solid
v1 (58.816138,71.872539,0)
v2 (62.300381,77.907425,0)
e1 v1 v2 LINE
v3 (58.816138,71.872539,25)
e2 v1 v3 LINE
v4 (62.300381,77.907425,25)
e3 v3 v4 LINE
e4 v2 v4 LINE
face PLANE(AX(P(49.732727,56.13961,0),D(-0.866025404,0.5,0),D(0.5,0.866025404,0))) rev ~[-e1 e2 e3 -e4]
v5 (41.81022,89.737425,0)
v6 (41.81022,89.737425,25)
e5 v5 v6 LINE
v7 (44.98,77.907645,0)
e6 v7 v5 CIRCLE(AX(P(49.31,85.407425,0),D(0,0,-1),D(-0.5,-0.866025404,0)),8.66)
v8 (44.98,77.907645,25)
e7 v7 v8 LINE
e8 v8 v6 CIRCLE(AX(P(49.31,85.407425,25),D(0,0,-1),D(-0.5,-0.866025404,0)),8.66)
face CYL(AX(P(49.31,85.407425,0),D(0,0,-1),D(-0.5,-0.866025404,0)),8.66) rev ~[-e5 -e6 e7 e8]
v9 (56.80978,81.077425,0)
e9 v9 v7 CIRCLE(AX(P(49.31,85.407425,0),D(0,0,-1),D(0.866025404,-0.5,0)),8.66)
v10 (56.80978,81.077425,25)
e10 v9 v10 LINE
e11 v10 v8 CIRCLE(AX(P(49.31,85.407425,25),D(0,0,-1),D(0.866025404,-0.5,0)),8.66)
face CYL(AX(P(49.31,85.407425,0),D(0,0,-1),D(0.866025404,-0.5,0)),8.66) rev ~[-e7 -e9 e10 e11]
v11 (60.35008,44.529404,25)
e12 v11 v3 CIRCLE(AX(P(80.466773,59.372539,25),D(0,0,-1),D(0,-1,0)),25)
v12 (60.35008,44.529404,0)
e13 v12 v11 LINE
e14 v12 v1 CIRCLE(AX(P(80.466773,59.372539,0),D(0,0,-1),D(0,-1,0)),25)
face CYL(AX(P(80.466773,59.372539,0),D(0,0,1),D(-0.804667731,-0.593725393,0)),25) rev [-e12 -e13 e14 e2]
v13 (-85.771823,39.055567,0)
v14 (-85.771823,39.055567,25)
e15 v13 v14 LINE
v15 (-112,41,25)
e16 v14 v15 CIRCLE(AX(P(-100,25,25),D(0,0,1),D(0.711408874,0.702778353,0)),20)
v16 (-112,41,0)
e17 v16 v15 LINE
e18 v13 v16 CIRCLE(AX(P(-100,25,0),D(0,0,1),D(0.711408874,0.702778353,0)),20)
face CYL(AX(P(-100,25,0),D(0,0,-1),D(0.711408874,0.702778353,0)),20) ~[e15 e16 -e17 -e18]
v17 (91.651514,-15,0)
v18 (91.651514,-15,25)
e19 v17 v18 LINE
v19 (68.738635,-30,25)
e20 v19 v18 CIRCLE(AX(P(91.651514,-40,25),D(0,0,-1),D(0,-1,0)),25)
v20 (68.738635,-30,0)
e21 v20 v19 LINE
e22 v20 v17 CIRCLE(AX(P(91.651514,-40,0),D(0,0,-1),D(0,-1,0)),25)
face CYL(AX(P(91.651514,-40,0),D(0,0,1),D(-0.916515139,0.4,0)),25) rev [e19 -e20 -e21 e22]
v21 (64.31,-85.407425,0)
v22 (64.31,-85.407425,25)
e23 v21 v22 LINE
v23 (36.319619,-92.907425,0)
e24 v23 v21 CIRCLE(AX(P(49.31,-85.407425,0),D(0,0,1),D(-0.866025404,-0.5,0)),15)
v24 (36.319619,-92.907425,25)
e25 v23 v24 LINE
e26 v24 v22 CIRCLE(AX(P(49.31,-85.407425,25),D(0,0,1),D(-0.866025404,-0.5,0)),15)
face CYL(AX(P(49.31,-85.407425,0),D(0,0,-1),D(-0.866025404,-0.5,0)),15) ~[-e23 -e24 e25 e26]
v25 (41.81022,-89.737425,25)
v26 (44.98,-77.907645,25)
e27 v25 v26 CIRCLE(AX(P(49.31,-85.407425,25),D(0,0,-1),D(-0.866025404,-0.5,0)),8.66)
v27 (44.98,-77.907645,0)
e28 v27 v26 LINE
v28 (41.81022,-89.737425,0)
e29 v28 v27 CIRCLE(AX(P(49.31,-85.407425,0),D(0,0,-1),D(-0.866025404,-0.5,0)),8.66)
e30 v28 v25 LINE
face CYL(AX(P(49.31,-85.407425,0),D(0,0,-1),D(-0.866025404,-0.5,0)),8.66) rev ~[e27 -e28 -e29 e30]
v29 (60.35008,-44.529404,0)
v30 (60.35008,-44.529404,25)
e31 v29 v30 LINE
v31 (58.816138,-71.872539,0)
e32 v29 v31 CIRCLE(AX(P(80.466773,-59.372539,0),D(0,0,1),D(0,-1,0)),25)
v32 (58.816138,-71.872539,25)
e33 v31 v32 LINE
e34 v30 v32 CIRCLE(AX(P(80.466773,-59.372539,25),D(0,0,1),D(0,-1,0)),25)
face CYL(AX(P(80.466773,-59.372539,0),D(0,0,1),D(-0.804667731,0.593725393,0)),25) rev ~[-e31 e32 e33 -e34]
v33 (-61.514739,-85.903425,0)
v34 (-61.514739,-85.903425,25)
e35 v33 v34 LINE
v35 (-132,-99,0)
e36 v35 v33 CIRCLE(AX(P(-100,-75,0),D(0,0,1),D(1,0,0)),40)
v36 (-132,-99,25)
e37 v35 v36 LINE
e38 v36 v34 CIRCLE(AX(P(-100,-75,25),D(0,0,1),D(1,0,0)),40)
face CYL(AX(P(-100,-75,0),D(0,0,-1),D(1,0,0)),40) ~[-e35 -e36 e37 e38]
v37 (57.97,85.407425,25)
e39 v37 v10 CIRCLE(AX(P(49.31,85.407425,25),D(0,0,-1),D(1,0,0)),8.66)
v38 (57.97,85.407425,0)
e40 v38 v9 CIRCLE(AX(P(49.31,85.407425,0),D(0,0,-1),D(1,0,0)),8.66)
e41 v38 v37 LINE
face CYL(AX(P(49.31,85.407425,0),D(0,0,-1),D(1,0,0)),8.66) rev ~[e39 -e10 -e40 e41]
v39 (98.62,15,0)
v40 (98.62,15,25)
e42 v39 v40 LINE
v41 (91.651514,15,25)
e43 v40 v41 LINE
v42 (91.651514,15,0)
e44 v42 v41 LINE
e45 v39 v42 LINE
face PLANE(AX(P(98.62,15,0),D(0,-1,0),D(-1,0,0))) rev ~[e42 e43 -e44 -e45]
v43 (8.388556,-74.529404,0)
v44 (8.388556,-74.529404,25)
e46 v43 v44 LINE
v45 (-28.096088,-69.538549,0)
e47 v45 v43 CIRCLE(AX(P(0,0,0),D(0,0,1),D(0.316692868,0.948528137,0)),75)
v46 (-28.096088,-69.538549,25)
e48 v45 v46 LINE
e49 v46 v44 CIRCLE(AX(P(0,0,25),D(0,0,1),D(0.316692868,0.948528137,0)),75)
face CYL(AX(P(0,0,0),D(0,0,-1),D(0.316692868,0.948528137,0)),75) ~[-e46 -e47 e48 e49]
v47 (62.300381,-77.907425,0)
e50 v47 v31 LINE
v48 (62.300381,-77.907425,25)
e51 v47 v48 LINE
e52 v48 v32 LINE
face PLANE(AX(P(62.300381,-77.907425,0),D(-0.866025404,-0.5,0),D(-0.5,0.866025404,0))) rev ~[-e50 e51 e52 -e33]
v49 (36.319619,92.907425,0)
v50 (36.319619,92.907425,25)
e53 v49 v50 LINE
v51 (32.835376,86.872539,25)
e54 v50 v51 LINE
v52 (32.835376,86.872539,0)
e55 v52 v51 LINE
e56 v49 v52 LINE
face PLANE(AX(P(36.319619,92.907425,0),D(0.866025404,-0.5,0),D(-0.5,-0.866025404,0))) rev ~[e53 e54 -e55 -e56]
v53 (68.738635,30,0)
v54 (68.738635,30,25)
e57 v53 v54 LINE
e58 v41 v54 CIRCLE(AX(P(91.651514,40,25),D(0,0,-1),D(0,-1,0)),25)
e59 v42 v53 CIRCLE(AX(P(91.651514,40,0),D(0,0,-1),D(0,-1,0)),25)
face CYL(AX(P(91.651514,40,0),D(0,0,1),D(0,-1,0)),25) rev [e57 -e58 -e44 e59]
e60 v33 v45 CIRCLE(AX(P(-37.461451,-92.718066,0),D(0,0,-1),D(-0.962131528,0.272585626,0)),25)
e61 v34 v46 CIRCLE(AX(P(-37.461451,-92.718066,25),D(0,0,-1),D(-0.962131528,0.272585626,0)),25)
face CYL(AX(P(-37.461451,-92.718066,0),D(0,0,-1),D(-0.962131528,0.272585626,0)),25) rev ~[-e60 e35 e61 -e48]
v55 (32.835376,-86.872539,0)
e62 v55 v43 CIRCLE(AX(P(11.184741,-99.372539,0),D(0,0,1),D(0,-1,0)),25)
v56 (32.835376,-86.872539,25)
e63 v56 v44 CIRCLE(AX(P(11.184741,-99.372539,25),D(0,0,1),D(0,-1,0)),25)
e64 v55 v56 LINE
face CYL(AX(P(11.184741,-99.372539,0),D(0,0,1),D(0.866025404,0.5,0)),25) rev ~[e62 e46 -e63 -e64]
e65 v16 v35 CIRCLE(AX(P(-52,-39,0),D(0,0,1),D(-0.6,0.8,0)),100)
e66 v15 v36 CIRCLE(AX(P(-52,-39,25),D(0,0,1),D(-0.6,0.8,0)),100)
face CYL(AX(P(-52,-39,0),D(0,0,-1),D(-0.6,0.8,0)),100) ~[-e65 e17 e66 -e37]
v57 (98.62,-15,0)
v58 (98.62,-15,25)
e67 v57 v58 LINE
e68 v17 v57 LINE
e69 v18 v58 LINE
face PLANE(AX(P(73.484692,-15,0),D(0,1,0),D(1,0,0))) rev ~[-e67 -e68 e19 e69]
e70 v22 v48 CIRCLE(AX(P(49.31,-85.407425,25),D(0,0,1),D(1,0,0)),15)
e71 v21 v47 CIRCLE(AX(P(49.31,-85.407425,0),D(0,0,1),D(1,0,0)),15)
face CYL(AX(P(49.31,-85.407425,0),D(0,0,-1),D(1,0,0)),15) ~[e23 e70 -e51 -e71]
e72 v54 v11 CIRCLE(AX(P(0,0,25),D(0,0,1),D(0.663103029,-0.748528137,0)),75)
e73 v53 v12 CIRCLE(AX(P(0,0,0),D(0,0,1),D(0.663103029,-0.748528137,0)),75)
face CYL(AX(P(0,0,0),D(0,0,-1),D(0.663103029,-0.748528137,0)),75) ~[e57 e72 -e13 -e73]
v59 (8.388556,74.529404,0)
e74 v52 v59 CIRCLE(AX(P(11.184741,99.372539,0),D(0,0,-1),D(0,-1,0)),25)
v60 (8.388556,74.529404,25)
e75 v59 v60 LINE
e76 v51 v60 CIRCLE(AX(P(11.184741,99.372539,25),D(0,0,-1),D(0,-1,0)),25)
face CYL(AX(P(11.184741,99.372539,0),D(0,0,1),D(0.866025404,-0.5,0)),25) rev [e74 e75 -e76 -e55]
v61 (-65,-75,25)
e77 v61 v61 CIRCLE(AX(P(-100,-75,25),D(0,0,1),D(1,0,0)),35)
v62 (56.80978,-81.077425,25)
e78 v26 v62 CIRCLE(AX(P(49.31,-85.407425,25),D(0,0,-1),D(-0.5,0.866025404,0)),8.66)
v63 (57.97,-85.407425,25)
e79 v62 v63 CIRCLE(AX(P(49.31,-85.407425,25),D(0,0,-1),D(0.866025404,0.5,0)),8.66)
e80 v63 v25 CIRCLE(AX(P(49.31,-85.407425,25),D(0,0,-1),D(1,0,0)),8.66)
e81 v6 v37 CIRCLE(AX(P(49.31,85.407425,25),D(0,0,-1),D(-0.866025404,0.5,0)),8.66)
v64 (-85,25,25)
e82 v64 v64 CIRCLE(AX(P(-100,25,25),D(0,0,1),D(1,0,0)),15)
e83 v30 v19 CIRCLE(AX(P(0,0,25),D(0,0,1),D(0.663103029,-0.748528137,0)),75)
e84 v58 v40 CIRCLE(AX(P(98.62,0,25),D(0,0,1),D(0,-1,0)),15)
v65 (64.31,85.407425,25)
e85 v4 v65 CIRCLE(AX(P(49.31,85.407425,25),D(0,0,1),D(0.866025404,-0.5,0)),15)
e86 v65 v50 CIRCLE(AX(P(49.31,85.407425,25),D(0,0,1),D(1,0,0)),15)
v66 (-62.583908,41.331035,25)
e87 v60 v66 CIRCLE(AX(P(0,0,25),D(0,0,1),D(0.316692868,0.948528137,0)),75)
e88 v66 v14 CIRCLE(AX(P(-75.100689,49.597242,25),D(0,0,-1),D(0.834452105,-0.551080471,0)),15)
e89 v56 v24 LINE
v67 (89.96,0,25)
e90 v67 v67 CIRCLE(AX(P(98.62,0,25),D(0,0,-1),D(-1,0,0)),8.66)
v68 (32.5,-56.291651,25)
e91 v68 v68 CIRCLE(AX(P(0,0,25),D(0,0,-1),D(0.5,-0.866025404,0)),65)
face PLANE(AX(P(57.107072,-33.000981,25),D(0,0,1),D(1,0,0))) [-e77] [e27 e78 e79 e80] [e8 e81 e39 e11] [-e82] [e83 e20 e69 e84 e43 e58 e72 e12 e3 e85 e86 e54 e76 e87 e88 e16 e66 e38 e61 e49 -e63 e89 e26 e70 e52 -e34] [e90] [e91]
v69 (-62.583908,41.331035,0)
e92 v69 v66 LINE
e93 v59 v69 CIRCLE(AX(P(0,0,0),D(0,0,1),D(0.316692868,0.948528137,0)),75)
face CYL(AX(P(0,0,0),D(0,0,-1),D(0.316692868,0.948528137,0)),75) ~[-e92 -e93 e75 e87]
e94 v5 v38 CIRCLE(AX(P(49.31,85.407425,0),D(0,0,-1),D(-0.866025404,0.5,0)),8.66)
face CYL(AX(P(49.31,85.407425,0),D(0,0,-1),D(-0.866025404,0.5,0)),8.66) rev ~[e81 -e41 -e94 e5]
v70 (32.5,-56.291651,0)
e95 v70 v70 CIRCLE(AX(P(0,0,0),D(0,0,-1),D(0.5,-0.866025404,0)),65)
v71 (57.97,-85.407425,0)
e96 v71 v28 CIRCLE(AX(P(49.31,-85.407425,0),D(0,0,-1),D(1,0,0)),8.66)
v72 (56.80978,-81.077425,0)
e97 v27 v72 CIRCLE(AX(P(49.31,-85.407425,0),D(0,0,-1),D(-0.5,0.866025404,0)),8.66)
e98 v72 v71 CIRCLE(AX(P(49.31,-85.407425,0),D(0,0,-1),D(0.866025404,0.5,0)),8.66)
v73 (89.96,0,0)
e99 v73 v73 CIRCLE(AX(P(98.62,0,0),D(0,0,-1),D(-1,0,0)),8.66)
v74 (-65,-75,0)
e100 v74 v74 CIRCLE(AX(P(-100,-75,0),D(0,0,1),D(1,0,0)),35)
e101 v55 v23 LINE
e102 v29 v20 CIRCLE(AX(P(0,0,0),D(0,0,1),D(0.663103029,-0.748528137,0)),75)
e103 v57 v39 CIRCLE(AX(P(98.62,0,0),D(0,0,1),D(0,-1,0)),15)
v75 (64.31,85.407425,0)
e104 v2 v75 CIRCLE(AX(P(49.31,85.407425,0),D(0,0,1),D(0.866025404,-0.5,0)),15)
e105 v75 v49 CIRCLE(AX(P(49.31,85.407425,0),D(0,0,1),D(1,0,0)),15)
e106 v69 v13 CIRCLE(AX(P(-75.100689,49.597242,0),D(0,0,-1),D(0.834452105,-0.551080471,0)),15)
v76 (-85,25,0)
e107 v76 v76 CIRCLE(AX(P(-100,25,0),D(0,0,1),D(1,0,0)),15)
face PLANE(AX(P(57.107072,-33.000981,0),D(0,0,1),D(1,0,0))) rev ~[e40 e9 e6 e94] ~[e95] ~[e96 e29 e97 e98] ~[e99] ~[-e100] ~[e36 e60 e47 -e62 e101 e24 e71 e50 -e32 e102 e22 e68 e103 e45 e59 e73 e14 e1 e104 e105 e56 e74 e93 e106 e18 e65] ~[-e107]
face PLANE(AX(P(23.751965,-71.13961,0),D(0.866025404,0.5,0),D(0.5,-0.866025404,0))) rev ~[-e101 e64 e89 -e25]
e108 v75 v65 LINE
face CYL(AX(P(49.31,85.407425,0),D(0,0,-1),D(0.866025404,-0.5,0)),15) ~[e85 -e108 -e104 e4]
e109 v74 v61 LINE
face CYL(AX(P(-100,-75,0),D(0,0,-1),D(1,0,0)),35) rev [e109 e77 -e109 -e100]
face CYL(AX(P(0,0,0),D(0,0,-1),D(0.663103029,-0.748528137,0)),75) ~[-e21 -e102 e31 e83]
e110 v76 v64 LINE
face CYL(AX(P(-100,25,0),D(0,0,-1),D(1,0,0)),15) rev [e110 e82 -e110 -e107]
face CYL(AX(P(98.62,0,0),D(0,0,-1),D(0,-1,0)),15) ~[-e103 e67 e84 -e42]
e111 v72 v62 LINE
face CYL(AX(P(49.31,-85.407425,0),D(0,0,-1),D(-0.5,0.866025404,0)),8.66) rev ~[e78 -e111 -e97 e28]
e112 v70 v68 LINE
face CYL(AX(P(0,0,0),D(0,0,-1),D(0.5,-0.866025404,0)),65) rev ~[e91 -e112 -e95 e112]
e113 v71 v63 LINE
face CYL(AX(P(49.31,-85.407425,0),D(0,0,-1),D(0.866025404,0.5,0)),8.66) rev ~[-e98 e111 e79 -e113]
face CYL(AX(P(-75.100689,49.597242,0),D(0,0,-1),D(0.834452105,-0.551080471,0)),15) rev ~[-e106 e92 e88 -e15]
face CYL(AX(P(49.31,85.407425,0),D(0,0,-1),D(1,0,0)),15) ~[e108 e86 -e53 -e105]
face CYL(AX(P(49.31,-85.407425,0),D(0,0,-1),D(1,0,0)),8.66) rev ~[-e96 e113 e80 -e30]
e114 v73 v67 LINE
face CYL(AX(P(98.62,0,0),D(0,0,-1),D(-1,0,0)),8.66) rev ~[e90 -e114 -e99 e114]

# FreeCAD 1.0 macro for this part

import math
import FreeCAD as App
import Part
import Sketcher

V = App.Vector
Q = App.Units.Quantity


def edges_at(feature, points):
    """Names of the edges that pass closest to the given points."""
    edges = feature.Shape.Edges
    near = lambda p: min(range(len(edges)), key=lambda i: edges[i].distToShape(Part.Vertex(*p))[0])
    return sorted({f"Edge{near(p) + 1}" for p in points})

doc = App.newDocument("Part")
body = doc.addObject("PartDesign::Body", "Body")

# Sketch on XY plane
sketch1 = body.newObject("Sketcher::SketchObject", "Sketch")
sketch1.AttachmentSupport = (doc.getObject("XY_Plane"), [""])
sketch1.MapMode = "FlatFace"
sketch1.addGeometry(Part.ArcOfCircle(Part.Circle(V(0, 0, 0), V(0, 0, 1), 75), math.radians(-48), math.radians(-12)), False)
sketch1.addGeometry(Part.LineSegment(V(73.5, -15, 0), V(98.6, -15, 0)), False)
sketch1.addGeometry(Part.ArcOfCircle(Part.Circle(V(98.6, 0, 0), V(0, 0, 1), 15), math.radians(-90), math.radians(90)), False)
sketch1.addGeometry(Part.LineSegment(V(98.6, 15, 0), V(73.5, 15, 0)), False)
sketch1.addGeometry(Part.ArcOfCircle(Part.Circle(V(0, 0, 0), V(0, 0, 1), 75), math.radians(12), math.radians(48)), False)
sketch1.addGeometry(Part.LineSegment(V(49.7, 56.1, 0), V(62.3, 77.9, 0)), False)
sketch1.addGeometry(Part.ArcOfCircle(Part.Circle(V(49.3, 85.4, 0), V(0, 0, 1), 15), math.radians(-30), math.radians(0)), False)
sketch1.addGeometry(Part.ArcOfCircle(Part.Circle(V(49.3, 85.4, 0), V(0, 0, 1), 15), math.radians(0), math.radians(150)), False)
sketch1.addGeometry(Part.LineSegment(V(36.3, 92.9, 0), V(23.8, 71.1, 0)), False)
sketch1.addGeometry(Part.ArcOfCircle(Part.Circle(V(0, 0, 0), V(0, 0, 1), 75), math.radians(72), math.radians(147)), False)
sketch1.addGeometry(Part.ArcOfCircle(Part.Circle(V(-75.1, 49.6, 0), V(0, 0, 1), 15), math.radians(-135), math.radians(-33)), False)
sketch1.addGeometry(Part.ArcOfCircle(Part.Circle(V(-100, 25, 0), V(0, 0, 1), 20), math.radians(45), math.radians(127)), False)
sketch1.addGeometry(Part.ArcOfCircle(Part.Circle(V(-52, -39, 0), V(0, 0, 1), 100), math.radians(127), math.radians(217)), False)
sketch1.addGeometry(Part.ArcOfCircle(Part.Circle(V(-100, -75, 0), V(0, 0, 1), 40), math.radians(-143), math.radians(-16)), False)
sketch1.addGeometry(Part.ArcOfCircle(Part.Circle(V(-37.5, -92.7, 0), V(0, 0, 1), 25), math.radians(68), math.radians(164)), False)
sketch1.addGeometry(Part.ArcOfCircle(Part.Circle(V(0, 0, 0), V(0, 0, 1), 75), math.radians(-112), math.radians(-72)), False)
sketch1.addGeometry(Part.LineSegment(V(23.8, -71.1, 0), V(36.3, -92.9, 0)), False)
sketch1.addGeometry(Part.ArcOfCircle(Part.Circle(V(49.3, -85.4, 0), V(0, 0, 1), 15), math.radians(-150), math.radians(0)), False)
sketch1.addGeometry(Part.ArcOfCircle(Part.Circle(V(49.3, -85.4, 0), V(0, 0, 1), 15), math.radians(0), math.radians(30)), False)
sketch1.addGeometry(Part.LineSegment(V(62.3, -77.9, 0), V(49.7, -56.1, 0)), False)
sketch1.addGeometry(Part.Circle(V(-100, -75, 0), V(0, 0, 1), 35), False)
sketch1.addGeometry(Part.ArcOfCircle(Part.Circle(V(49.3, -85.4, 0), V(0, 0, 1), 8.7), math.radians(120), math.radians(210)), False)
sketch1.addGeometry(Part.ArcOfCircle(Part.Circle(V(49.3, -85.4, 0), V(0, 0, 1), 8.7), math.radians(30), math.radians(120)), False)
sketch1.addGeometry(Part.ArcOfCircle(Part.Circle(V(49.3, -85.4, 0), V(0, 0, 1), 8.7), math.radians(0), math.radians(30)), False)
sketch1.addGeometry(Part.ArcOfCircle(Part.Circle(V(49.3, -85.4, 0), V(0, 0, 1), 8.7), math.radians(-150), math.radians(0)), False)
sketch1.addGeometry(Part.Circle(V(-100, 25, 0), V(0, 0, 1), 15), False)
sketch1.addGeometry(Part.Circle(V(0, 0, 0), V(0, 0, 1), 65), False)
sketch1.addGeometry(Part.Circle(V(98.6, 0, 0), V(0, 0, 1), 8.7), False)
sketch1.addGeometry(Part.ArcOfCircle(Part.Circle(V(49.3, 85.4, 0), V(0, 0, 1), 8.7), math.radians(-120), math.radians(-30)), False)
sketch1.addGeometry(Part.ArcOfCircle(Part.Circle(V(49.3, 85.4, 0), V(0, 0, 1), 8.7), math.radians(150), math.radians(240)), False)
sketch1.addGeometry(Part.ArcOfCircle(Part.Circle(V(49.3, 85.4, 0), V(0, 0, 1), 8.7), math.radians(0), math.radians(150)), False)
sketch1.addGeometry(Part.ArcOfCircle(Part.Circle(V(49.3, 85.4, 0), V(0, 0, 1), 8.7), math.radians(-30), math.radians(0)), False)
sketch1.addConstraint(Sketcher.Constraint("Coincident", 0, 2, 1, 1))
sketch1.addConstraint(Sketcher.Constraint("Tangent", 1, 2, 2, 1))
sketch1.addConstraint(Sketcher.Constraint("Tangent", 2, 2, 3, 1))
sketch1.addConstraint(Sketcher.Constraint("Coincident", 3, 2, 4, 1))
sketch1.addConstraint(Sketcher.Constraint("Coincident", 4, 2, 5, 1))
sketch1.addConstraint(Sketcher.Constraint("Tangent", 5, 2, 6, 1))
sketch1.addConstraint(Sketcher.Constraint("Tangent", 6, 2, 7, 1))
sketch1.addConstraint(Sketcher.Constraint("Tangent", 7, 2, 8, 1))
sketch1.addConstraint(Sketcher.Constraint("Coincident", 8, 2, 9, 1))
sketch1.addConstraint(Sketcher.Constraint("Tangent", 9, 2, 10, 2))
sketch1.addConstraint(Sketcher.Constraint("Tangent", 10, 1, 11, 1))
sketch1.addConstraint(Sketcher.Constraint("Tangent", 11, 2, 12, 1))
sketch1.addConstraint(Sketcher.Constraint("Tangent", 12, 2, 13, 1))
sketch1.addConstraint(Sketcher.Constraint("Tangent", 13, 2, 14, 2))
sketch1.addConstraint(Sketcher.Constraint("Tangent", 14, 1, 15, 1))
sketch1.addConstraint(Sketcher.Constraint("Coincident", 15, 2, 16, 1))
sketch1.addConstraint(Sketcher.Constraint("Tangent", 16, 2, 17, 1))
sketch1.addConstraint(Sketcher.Constraint("Tangent", 17, 2, 18, 1))
sketch1.addConstraint(Sketcher.Constraint("Tangent", 18, 2, 19, 1))
sketch1.addConstraint(Sketcher.Constraint("Coincident", 19, 2, 0, 1))
sketch1.addConstraint(Sketcher.Constraint("Tangent", 21, 1, 22, 2))
sketch1.addConstraint(Sketcher.Constraint("Tangent", 22, 1, 23, 2))
sketch1.addConstraint(Sketcher.Constraint("Tangent", 23, 1, 24, 2))
sketch1.addConstraint(Sketcher.Constraint("Tangent", 24, 1, 21, 2))
sketch1.addConstraint(Sketcher.Constraint("Tangent", 28, 1, 29, 2))
sketch1.addConstraint(Sketcher.Constraint("Tangent", 29, 1, 30, 2))
sketch1.addConstraint(Sketcher.Constraint("Tangent", 30, 1, 31, 2))
sketch1.addConstraint(Sketcher.Constraint("Tangent", 31, 1, 28, 2))
sketch1.addConstraint(Sketcher.Constraint("Horizontal", 1))
sketch1.addConstraint(Sketcher.Constraint("Horizontal", 3))
sketch1.addConstraint(Sketcher.Constraint("Coincident", 0, 3, -1, 1))
sketch1.addConstraint(Sketcher.Constraint("Coincident", 4, 3, -1, 1))
sketch1.addConstraint(Sketcher.Constraint("Coincident", 9, 3, -1, 1))
sketch1.addConstraint(Sketcher.Constraint("Coincident", 15, 3, -1, 1))
sketch1.addConstraint(Sketcher.Constraint("Coincident", 26, 3, -1, 1))
sketch1.addConstraint(Sketcher.Constraint("Coincident", 20, 3, 13, 3))
sketch1.addConstraint(Sketcher.Constraint("Coincident", 21, 3, 17, 3))
sketch1.addConstraint(Sketcher.Constraint("Coincident", 25, 3, 11, 3))
sketch1.addConstraint(Sketcher.Constraint("Coincident", 27, 3, 2, 3))
sketch1.addConstraint(Sketcher.Constraint("Coincident", 28, 3, 6, 3))
sketch1.addConstraint(Sketcher.Constraint("Equal", 0, 4))
sketch1.addConstraint(Sketcher.Constraint("Equal", 2, 6))
sketch1.addConstraint(Sketcher.Constraint("Equal", 6, 7))
sketch1.addConstraint(Sketcher.Constraint("Equal", 4, 9))
sketch1.addConstraint(Sketcher.Constraint("Equal", 7, 10))
sketch1.addConstraint(Sketcher.Constraint("Equal", 9, 15))
sketch1.addConstraint(Sketcher.Constraint("Equal", 10, 17))
sketch1.addConstraint(Sketcher.Constraint("Equal", 17, 18))
sketch1.addConstraint(Sketcher.Constraint("Equal", 21, 22))
sketch1.addConstraint(Sketcher.Constraint("Equal", 18, 25))
sketch1.addConstraint(Sketcher.Constraint("Equal", 24, 27))
sketch1.addConstraint(Sketcher.Constraint("Equal", 27, 28))
sketch1.addConstraint(Sketcher.Constraint("Equal", 28, 29))
sketch1.addConstraint(Sketcher.Constraint("Symmetric", 6, 3, 17, 3, -1))
sketch1.addConstraint(Sketcher.Constraint("PointOnObject", 2, 3, -1))
sketch1.addConstraint(Sketcher.Constraint("Parallel", 5, 8))
sketch1.addConstraint(Sketcher.Constraint("Parallel", 16, 19))
sketch1.addConstraint(Sketcher.Constraint("Horizontal", 31, 3, 6, 2))
sketch1.addConstraint(Sketcher.Constraint("Horizontal", 24, 3, 17, 2))
sketch1.addConstraint(Sketcher.Constraint("Horizontal", 17, 2, 23, 1))
sketch1.addConstraint(Sketcher.Constraint("Horizontal", 6, 2, 30, 1))
sketch1.addConstraint(Sketcher.Constraint("Vertical", 11, 3, 13, 3))
sketch1.addConstraint(Sketcher.Constraint("Vertical", 8, 2, 15, 2))
sketch1.addConstraint(Sketcher.Constraint("Vertical", 21, 1, 28, 1))
sketch1.addConstraint(Sketcher.Constraint("Vertical", 24, 1, 29, 1))
sketch1.addConstraint(Sketcher.Constraint("Vertical", 22, 1, 31, 1))
sketch1.addConstraint(Sketcher.Constraint("Equal", 5, 8))
sketch1.addConstraint(Sketcher.Constraint("Diameter", 20, 70.0))
sketch1.addConstraint(Sketcher.Constraint("Diameter", 25, 30.0))
sketch1.addConstraint(Sketcher.Constraint("Diameter", 26, 130.0))
sketch1.addConstraint(Sketcher.Constraint("Radius", 0, 75.0))
sketch1.addConstraint(Sketcher.Constraint("Radius", 11, 20.0))
sketch1.addConstraint(Sketcher.Constraint("Radius", 12, 100.0))
sketch1.addConstraint(Sketcher.Constraint("Radius", 13, 40.0))
sketch1.addConstraint(Sketcher.Constraint("Radius", 14, 25.0))
sketch1.addConstraint(Sketcher.Constraint("Diameter", 27, 17.32))
sketch1.addConstraint(Sketcher.Constraint("Angle", 5, Q("60 deg")))
sketch1.addConstraint(Sketcher.Constraint("DistanceX", 11, 3, -1, 1, 100.0))
sketch1.addConstraint(Sketcher.Constraint("DistanceY", -1, 1, 11, 3, 25.0))
sketch1.addConstraint(Sketcher.Constraint("DistanceX", 12, 3, -1, 1, 52.0))
sketch1.addConstraint(Sketcher.Constraint("DistanceX", -1, 1, 2, 3, 98.62))
sketch1.addConstraint(Sketcher.Constraint("DistanceX", -1, 1, 6, 3, 49.31))
sketch1.addConstraint(Sketcher.Constraint("DistanceX", -1, 1, 21, 1, 44.98))
sketch1.addConstraint(Sketcher.Constraint("DistanceY", 22, 1, 18, 2, 3.17))
sketch1.addConstraint(Sketcher.Constraint("DistanceY", 16, 2, 24, 1, 3.17))
pad1 = body.newObject("PartDesign::Pad", "Pad")
pad1.Profile = sketch1
pad1.Length = 25
doc.recompute()

fillet = body.newObject("PartDesign::Fillet", "Fillet")
fillet.Base = (pad1, edges_at(pad1, [
    (49.733, -56.14, 12.5),
    (73.485, -15, 12.5),
    (23.752, -71.14, 12.5),
    (73.485, 15, 12.5),
    (49.733, 56.14, 12.5),
    (23.752, 71.14, 12.5),
]))
fillet.Radius = 25

doc.recompute()
